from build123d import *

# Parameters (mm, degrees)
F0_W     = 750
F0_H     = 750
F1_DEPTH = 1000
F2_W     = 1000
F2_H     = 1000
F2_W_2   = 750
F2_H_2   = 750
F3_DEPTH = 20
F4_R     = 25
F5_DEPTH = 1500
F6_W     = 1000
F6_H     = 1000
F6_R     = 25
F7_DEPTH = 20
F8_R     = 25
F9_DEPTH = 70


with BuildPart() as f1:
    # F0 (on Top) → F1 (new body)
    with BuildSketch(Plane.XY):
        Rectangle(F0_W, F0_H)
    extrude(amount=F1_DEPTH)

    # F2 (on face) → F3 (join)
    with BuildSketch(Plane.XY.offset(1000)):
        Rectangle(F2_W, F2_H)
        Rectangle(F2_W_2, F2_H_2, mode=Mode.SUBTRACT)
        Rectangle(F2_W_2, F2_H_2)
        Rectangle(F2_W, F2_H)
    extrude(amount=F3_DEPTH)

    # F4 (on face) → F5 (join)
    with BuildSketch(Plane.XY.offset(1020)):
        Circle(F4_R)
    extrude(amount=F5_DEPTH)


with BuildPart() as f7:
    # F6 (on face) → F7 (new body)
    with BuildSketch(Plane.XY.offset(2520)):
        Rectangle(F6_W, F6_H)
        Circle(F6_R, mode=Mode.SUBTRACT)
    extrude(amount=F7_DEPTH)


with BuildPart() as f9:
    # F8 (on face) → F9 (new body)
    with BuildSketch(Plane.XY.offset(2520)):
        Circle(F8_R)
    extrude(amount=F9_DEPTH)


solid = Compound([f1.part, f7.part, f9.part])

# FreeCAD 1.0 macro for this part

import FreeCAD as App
import Part
import Sketcher

doc = App.newDocument("Part")
params = doc.addObject("Spreadsheet::Sheet", "Params")
for row, (alias, value) in enumerate([
    ("sketch1_width", "750 mm"),
    ("pad1_length", "1000 mm"),
    ("sketch2_width", "1000 mm"),
    ("pad2_length", "20 mm"),
    ("sketch3_diameter", "50 mm"),
    ("pad3_length", "1500 mm"),
    ("sketch4_diameter", "50 mm"),
    ("sketch4_width", "1000 mm"),
    ("pad4_length", "20 mm"),
    ("sketch5_diameter", "50 mm"),
    ("pad5_length", "70 mm"),
], start=1):
    params.set(f"A{row}", alias)
    params.set(f"B{row}", "=" + value)
    params.setAlias(f"B{row}", alias)

body = doc.addObject("PartDesign::Body", "Body")

# Sketch on XY plane
sketch1 = doc.addObject("Sketcher::SketchObject", "Sketch")
body.addObject(sketch1)
sketch1.AttachmentSupport = (doc.XY_Plane, [""])
sketch1.MapMode = "FlatFace"
sketch1.addGeometry(Part.LineSegment(App.Vector(-375, 375, 0), App.Vector(-375, -375, 0)), False)
sketch1.addGeometry(Part.LineSegment(App.Vector(-375, -375, 0), App.Vector(375, -375, 0)), False)
sketch1.addGeometry(Part.LineSegment(App.Vector(375, -375, 0), App.Vector(375, 375, 0)), False)
sketch1.addGeometry(Part.LineSegment(App.Vector(375, 375, 0), App.Vector(-375, 375, 0)), False)
sketch1.addConstraint(Sketcher.Constraint("Coincident", 0, 2, 1, 1))
sketch1.addConstraint(Sketcher.Constraint("Coincident", 1, 2, 2, 1))
sketch1.addConstraint(Sketcher.Constraint("Coincident", 2, 2, 3, 1))
sketch1.addConstraint(Sketcher.Constraint("Coincident", 3, 2, 0, 1))
sketch1.addConstraint(Sketcher.Constraint("Vertical", 0))
sketch1.addConstraint(Sketcher.Constraint("Horizontal", 1))
sketch1.addConstraint(Sketcher.Constraint("Vertical", 2))
sketch1.addConstraint(Sketcher.Constraint("Horizontal", 3))
sketch1.addConstraint(Sketcher.Constraint("Symmetric", 0, 2, 2, 2, -1, 1))
sketch1.addConstraint(Sketcher.Constraint("Equal", 3, 0))
sketch1.addConstraint(Sketcher.Constraint("DistanceX", 1, 1, 1, 2, 750.0))
sketch1.setExpression("Constraints[10]", "Params.sketch1_width")
pad1 = doc.addObject("PartDesign::Pad", "Pad")
body.addObject(pad1)
pad1.Profile = sketch1
pad1.setExpression("Length", "Params.pad1_length")

# Sketch on XY plane
sketch2 = doc.addObject("Sketcher::SketchObject", "Sketch001")
body.addObject(sketch2)
sketch2.AttachmentSupport = (doc.XY_Plane, [""])
sketch2.MapMode = "FlatFace"
sketch2.AttachmentOffset = App.Placement(App.Vector(0, 0, 1000), App.Rotation())
sketch2.addGeometry(Part.LineSegment(App.Vector(-500, 500, 0), App.Vector(-500, -500, 0)), False)
sketch2.addGeometry(Part.LineSegment(App.Vector(-500, -500, 0), App.Vector(500, -500, 0)), False)
sketch2.addGeometry(Part.LineSegment(App.Vector(500, -500, 0), App.Vector(500, 500, 0)), False)
sketch2.addGeometry(Part.LineSegment(App.Vector(500, 500, 0), App.Vector(-500, 500, 0)), False)
sketch2.addConstraint(Sketcher.Constraint("Coincident", 0, 2, 1, 1))
sketch2.addConstraint(Sketcher.Constraint("Coincident", 1, 2, 2, 1))
sketch2.addConstraint(Sketcher.Constraint("Coincident", 2, 2, 3, 1))
sketch2.addConstraint(Sketcher.Constraint("Coincident", 3, 2, 0, 1))
sketch2.addConstraint(Sketcher.Constraint("Vertical", 0))
sketch2.addConstraint(Sketcher.Constraint("Horizontal", 1))
sketch2.addConstraint(Sketcher.Constraint("Vertical", 2))
sketch2.addConstraint(Sketcher.Constraint("Horizontal", 3))
sketch2.addConstraint(Sketcher.Constraint("Symmetric", 0, 2, 2, 2, -1, 1))
sketch2.addConstraint(Sketcher.Constraint("Equal", 3, 0))
sketch2.addConstraint(Sketcher.Constraint("DistanceX", 1, 1, 1, 2, 1000.0))
sketch2.setExpression("Constraints[10]", "Params.sketch2_width")
pad2 = doc.addObject("PartDesign::Pad", "Pad001")
body.addObject(pad2)
pad2.Profile = sketch2
pad2.setExpression("Length", "Params.pad2_length")

# Sketch on XY plane
sketch3 = doc.addObject("Sketcher::SketchObject", "Sketch002")
body.addObject(sketch3)
sketch3.AttachmentSupport = (doc.XY_Plane, [""])
sketch3.MapMode = "FlatFace"
sketch3.AttachmentOffset = App.Placement(App.Vector(0, 0, 1020), App.Rotation())
sketch3.addGeometry(Part.Circle(App.Vector(0, 0, 0), App.Vector(0, 0, 1), 25), False)
sketch3.addConstraint(Sketcher.Constraint("Coincident", 0, 3, -1, 1))
sketch3.addConstraint(Sketcher.Constraint("Diameter", 0, 50.0))
sketch3.setExpression("Constraints[1]", "Params.sketch3_diameter")
pad3 = doc.addObject("PartDesign::Pad", "Pad002")
body.addObject(pad3)
pad3.Profile = sketch3
pad3.setExpression("Length", "Params.pad3_length")
body2 = doc.addObject("PartDesign::Body", "Body001")

# Sketch on XY plane
sketch4 = doc.addObject("Sketcher::SketchObject", "Sketch003")
body2.addObject(sketch4)
sketch4.AttachmentSupport = (doc.getObject("XY_Plane001"), [""])
sketch4.MapMode = "FlatFace"
sketch4.AttachmentOffset = App.Placement(App.Vector(0, 0, 2520), App.Rotation())
sketch4.addGeometry(Part.LineSegment(App.Vector(-500, 500, 0), App.Vector(-500, -500, 0)), False)
sketch4.addGeometry(Part.LineSegment(App.Vector(-500, -500, 0), App.Vector(500, -500, 0)), False)
sketch4.addGeometry(Part.LineSegment(App.Vector(500, -500, 0), App.Vector(500, 500, 0)), False)
sketch4.addGeometry(Part.LineSegment(App.Vector(500, 500, 0), App.Vector(-500, 500, 0)), False)
sketch4.addGeometry(Part.Circle(App.Vector(0, 0, 0), App.Vector(0, 0, 1), 25), False)
sketch4.addConstraint(Sketcher.Constraint("Coincident", 0, 2, 1, 1))
sketch4.addConstraint(Sketcher.Constraint("Coincident", 1, 2, 2, 1))
sketch4.addConstraint(Sketcher.Constraint("Coincident", 2, 2, 3, 1))
sketch4.addConstraint(Sketcher.Constraint("Coincident", 3, 2, 0, 1))
sketch4.addConstraint(Sketcher.Constraint("Vertical", 0))
sketch4.addConstraint(Sketcher.Constraint("Horizontal", 1))
sketch4.addConstraint(Sketcher.Constraint("Vertical", 2))
sketch4.addConstraint(Sketcher.Constraint("Horizontal", 3))
sketch4.addConstraint(Sketcher.Constraint("Coincident", 4, 3, -1, 1))
sketch4.addConstraint(Sketcher.Constraint("Symmetric", 0, 2, 2, 2, -1, 1))
sketch4.addConstraint(Sketcher.Constraint("Equal", 3, 0))
sketch4.addConstraint(Sketcher.Constraint("Diameter", 4, 50.0))
sketch4.addConstraint(Sketcher.Constraint("DistanceX", 1, 1, 1, 2, 1000.0))
sketch4.setExpression("Constraints[11]", "Params.sketch4_diameter")
sketch4.setExpression("Constraints[12]", "Params.sketch4_width")
pad4 = doc.addObject("PartDesign::Pad", "Pad003")
body2.addObject(pad4)
pad4.Profile = sketch4
pad4.setExpression("Length", "Params.pad4_length")
body3 = doc.addObject("PartDesign::Body", "Body002")

# Sketch on XY plane
sketch5 = doc.addObject("Sketcher::SketchObject", "Sketch004")
body3.addObject(sketch5)
sketch5.AttachmentSupport = (doc.getObject("XY_Plane002"), [""])
sketch5.MapMode = "FlatFace"
sketch5.AttachmentOffset = App.Placement(App.Vector(0, 0, 2520), App.Rotation())
sketch5.addGeometry(Part.Circle(App.Vector(0, 0, 0), App.Vector(0, 0, 1), 25), False)
sketch5.addConstraint(Sketcher.Constraint("Coincident", 0, 3, -1, 1))
sketch5.addConstraint(Sketcher.Constraint("Diameter", 0, 50.0))
sketch5.setExpression("Constraints[1]", "Params.sketch5_diameter")
pad5 = doc.addObject("PartDesign::Pad", "Pad004")
body3.addObject(pad5)
pad5.Profile = sketch5
pad5.setExpression("Length", "Params.pad5_length")

doc.recompute()
